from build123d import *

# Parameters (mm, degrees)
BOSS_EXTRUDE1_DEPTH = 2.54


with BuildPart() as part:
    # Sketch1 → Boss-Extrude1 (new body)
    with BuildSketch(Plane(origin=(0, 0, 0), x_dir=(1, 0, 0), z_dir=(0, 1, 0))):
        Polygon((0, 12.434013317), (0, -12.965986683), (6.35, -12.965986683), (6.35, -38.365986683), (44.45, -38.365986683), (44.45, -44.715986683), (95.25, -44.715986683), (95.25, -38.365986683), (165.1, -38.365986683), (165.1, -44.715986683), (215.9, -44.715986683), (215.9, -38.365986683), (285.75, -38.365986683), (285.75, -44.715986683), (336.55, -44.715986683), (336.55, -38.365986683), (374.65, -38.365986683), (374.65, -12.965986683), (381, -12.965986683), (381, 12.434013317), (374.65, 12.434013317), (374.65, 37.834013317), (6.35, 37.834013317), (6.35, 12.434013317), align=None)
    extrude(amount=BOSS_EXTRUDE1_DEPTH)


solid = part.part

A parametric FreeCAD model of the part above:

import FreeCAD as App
import Part
import Sketcher

V = App.Vector
Q = App.Units.Quantity


def add_polygon(sketch, points):
    """Adds a closed chain of lines whose ends are joined by coincident constraints."""
    first, n = sketch.GeometryCount, len(points)
    for a, b in zip(points, points[1:] + points[:1]):
        sketch.addGeometry(Part.LineSegment(App.Vector(*a, 0), App.Vector(*b, 0)), False)
    for i in range(n):
        sketch.addConstraint(Sketcher.Constraint("Coincident", first + i, 2, first + (i + 1) % n, 1))

doc = App.newDocument("Part")
body = doc.addObject("PartDesign::Body", "Body")

# Sketch on XZ plane
sketch1 = doc.addObject("Sketcher::SketchObject", "Sketch")
body.addObject(sketch1)
sketch1.AttachmentSupport = (doc.XZ_Plane, [""])
sketch1.MapMode = "FlatFace"
add_polygon(sketch1, [(0, -12), (0, 13), (6, 13), (6, 38), (44, 38), (44, 45), (95, 45), (95, 38), (165, 38), (165, 45), (216, 45), (216, 38), (286, 38), (286, 45), (337, 45), (337, 38), (375, 38), (375, 13), (381, 13), (381, -12), (375, -12), (375, -38), (6, -38), (6, -12)])  # lines 0-23
sketch1.addConstraint([
    Sketcher.Constraint("Vertical", 0),
    Sketcher.Constraint("Horizontal", 1),
    Sketcher.Constraint("Vertical", 2),
    Sketcher.Constraint("Horizontal", 3),
    Sketcher.Constraint("Vertical", 4),
    Sketcher.Constraint("Horizontal", 5),
    Sketcher.Constraint("Vertical", 6),
    Sketcher.Constraint("Horizontal", 7),
    Sketcher.Constraint("Vertical", 8),
    Sketcher.Constraint("Horizontal", 9),
    Sketcher.Constraint("Vertical", 10),
    Sketcher.Constraint("Horizontal", 11),
    Sketcher.Constraint("Vertical", 12),
    Sketcher.Constraint("Horizontal", 13),
    Sketcher.Constraint("Vertical", 14),
    Sketcher.Constraint("Horizontal", 15),
    Sketcher.Constraint("Vertical", 16),
    Sketcher.Constraint("Horizontal", 17),
    Sketcher.Constraint("Vertical", 18),
    Sketcher.Constraint("Horizontal", 19),
    Sketcher.Constraint("Vertical", 20),
    Sketcher.Constraint("Horizontal", 21),
    Sketcher.Constraint("Vertical", 22),
    Sketcher.Constraint("Horizontal", 23),
    Sketcher.Constraint("PointOnObject", 0, 2, -2),
    Sketcher.Constraint("Horizontal", 3, 2, 6, 2),
    Sketcher.Constraint("Horizontal", 5, 2, 8, 2),
    Sketcher.Constraint("Horizontal", 7, 2, 10, 2),
    Sketcher.Constraint("Horizontal", 9, 2, 12, 2),
    Sketcher.Constraint("Horizontal", 11, 2, 14, 2),
    Sketcher.Constraint("Horizontal", 1, 2, 16, 2),
    Sketcher.Constraint("Horizontal", 19, 2, 22, 2),
    Sketcher.Constraint("Vertical", 16, 2, 19, 2),
    Sketcher.Constraint("Vertical", 2, 2, 21, 2),
    Sketcher.Constraint("Equal", 5, 9),
    Sketcher.Constraint("Equal", 7, 11),
    Sketcher.Constraint("Equal", 9, 13),
    Sketcher.Constraint("Equal", 3, 15),
    Sketcher.Constraint("Equal", 1, 17),
    Sketcher.Constraint("Equal", 0, 2),
    Sketcher.Constraint("Equal", 23, 4),
    Sketcher.Constraint("Equal", 18, 20),
    Sketcher.Constraint("DistanceX", 5, 1, 5, 2, Q("2 in")),
    Sketcher.Constraint("DistanceY", 0, 1, 0, 2, Q("1 in")),
    Sketcher.Constraint("DistanceX", 3, 1, 3, 2, Q("1.5 in")),
    Sketcher.Constraint("DistanceX", 21, 2, 21, 1, Q("14.5 in")),
    Sketcher.Constraint("DistanceX", -1, 1, 17, 2, Q("15 in")),
    Sketcher.Constraint("DistanceY", -1, 1, 0, 2, 12.965987),
])
pad1 = doc.addObject("PartDesign::Pad", "Pad")
body.addObject(pad1)
pad1.Profile = sketch1
pad1.Length = Q("0.1 in")
pad1.Reversed = True

doc.recompute()
